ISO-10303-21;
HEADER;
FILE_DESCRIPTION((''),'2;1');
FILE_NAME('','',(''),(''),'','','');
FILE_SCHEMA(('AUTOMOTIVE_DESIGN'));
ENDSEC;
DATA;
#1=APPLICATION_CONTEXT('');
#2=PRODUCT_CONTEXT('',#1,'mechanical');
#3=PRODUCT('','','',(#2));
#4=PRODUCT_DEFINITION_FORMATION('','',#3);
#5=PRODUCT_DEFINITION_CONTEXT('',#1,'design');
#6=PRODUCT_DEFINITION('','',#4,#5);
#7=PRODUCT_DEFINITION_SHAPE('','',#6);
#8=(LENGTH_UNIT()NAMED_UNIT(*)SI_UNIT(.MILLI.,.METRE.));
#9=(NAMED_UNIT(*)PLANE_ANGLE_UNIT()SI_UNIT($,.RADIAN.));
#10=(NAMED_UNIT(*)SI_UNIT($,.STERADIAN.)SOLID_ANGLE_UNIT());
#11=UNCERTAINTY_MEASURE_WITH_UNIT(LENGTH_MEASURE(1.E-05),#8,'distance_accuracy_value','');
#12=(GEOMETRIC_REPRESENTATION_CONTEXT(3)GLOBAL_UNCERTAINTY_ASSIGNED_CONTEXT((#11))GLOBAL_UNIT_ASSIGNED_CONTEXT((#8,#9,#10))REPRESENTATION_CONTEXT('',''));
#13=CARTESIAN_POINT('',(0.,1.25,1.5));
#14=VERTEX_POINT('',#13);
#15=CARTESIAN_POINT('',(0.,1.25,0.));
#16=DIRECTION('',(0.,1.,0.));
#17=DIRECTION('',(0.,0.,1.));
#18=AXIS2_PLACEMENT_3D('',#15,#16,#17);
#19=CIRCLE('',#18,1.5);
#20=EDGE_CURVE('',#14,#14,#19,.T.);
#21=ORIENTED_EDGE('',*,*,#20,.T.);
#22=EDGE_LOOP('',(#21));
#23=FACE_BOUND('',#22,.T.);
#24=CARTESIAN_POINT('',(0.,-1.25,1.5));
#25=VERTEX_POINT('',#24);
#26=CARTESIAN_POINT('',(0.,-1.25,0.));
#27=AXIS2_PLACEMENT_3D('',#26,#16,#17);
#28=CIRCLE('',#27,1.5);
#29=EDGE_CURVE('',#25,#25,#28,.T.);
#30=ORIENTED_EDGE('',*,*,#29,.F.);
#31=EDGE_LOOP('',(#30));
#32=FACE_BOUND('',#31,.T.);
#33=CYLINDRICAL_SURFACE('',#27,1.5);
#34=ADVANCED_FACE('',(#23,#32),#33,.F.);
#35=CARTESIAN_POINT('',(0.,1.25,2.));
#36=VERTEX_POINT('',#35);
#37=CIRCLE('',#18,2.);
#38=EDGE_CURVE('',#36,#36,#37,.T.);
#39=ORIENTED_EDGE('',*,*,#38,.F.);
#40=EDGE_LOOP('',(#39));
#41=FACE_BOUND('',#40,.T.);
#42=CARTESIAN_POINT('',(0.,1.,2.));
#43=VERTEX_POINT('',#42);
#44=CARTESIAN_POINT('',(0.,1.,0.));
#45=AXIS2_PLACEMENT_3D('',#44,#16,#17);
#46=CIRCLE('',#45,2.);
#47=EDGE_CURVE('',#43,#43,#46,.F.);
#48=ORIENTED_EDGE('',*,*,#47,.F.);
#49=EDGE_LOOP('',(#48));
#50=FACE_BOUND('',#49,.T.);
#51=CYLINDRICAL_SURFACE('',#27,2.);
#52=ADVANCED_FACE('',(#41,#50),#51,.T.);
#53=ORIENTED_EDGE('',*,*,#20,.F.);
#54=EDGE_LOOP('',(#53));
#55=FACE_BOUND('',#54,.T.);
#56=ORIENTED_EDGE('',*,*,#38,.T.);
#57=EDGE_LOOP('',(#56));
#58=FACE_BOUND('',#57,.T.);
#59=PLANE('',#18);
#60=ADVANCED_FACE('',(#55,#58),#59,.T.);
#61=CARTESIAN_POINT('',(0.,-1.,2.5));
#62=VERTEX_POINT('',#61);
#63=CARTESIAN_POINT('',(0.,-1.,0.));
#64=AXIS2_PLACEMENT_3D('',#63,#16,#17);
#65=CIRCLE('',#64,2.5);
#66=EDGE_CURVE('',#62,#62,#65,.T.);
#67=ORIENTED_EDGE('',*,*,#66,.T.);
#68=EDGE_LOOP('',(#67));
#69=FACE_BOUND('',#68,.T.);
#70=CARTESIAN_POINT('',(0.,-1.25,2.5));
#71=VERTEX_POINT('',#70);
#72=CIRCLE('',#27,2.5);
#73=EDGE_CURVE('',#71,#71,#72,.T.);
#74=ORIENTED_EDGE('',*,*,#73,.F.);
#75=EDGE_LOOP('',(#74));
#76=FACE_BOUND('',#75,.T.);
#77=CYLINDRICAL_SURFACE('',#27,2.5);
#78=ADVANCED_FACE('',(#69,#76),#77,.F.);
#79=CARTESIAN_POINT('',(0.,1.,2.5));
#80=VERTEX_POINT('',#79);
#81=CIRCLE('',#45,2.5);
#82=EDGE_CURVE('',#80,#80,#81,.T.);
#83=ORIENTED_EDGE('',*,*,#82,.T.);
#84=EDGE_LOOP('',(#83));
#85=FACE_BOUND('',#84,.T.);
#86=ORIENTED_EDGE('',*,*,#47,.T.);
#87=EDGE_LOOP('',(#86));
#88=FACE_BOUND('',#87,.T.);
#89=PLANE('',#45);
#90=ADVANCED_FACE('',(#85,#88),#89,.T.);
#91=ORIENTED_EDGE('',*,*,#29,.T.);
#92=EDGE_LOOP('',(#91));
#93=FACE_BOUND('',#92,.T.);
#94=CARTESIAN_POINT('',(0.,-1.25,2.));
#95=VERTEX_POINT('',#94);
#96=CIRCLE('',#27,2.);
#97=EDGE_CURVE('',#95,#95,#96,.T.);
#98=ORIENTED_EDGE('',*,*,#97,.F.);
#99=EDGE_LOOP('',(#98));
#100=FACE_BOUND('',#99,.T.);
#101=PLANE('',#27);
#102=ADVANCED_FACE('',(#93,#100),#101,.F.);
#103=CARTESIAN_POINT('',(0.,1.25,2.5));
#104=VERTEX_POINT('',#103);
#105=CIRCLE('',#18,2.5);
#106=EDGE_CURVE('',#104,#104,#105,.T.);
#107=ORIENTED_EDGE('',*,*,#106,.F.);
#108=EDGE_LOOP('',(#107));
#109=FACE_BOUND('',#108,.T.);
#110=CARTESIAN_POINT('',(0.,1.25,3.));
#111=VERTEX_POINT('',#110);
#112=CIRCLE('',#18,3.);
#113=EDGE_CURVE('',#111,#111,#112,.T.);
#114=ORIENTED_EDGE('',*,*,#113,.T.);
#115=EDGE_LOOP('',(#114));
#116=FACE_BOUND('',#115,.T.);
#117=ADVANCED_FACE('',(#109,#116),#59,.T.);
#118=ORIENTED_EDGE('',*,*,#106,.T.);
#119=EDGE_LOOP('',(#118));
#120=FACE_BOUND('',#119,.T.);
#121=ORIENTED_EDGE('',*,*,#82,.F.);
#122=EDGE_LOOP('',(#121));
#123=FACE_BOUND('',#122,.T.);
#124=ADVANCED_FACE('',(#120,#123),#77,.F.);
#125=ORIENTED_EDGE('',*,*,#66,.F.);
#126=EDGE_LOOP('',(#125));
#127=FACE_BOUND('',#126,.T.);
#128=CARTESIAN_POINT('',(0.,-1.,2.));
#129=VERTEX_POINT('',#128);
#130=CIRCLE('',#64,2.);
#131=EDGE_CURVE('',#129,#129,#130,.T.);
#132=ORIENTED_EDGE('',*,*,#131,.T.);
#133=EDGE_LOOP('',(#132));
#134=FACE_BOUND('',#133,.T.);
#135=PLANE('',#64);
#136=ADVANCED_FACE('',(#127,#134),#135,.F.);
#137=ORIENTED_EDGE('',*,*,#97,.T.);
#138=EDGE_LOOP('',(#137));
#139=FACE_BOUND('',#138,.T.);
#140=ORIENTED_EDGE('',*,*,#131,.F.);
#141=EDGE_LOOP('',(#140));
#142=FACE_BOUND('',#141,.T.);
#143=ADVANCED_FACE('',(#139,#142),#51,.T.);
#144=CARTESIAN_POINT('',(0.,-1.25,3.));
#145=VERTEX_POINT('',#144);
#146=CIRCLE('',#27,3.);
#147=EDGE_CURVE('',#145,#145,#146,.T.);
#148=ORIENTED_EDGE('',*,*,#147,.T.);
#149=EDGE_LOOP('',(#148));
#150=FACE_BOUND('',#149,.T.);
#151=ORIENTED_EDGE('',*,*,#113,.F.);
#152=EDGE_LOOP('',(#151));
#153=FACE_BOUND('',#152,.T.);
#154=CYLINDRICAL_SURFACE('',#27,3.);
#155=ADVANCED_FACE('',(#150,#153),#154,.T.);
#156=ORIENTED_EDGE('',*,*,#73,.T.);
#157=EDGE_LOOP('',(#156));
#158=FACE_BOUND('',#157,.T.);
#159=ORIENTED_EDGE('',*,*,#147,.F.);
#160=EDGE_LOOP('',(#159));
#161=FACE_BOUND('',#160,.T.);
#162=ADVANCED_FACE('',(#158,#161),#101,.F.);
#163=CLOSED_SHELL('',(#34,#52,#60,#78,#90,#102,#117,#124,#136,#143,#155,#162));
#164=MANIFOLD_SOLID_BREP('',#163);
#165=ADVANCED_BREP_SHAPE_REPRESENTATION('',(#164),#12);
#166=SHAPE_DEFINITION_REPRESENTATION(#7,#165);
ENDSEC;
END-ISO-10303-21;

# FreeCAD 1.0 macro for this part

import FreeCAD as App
import Part
import Sketcher

V = App.Vector

doc = App.newDocument("Part")
params = doc.addObject("Spreadsheet::Sheet", "Params")
for row, (alias, value) in enumerate([
    ("sketch1_diameter", "4 mm"),
    ("sketch1_diameter2", "3 mm"),
    ("pad1_length", "1.25 mm"),
    ("pad1_length2", "1.25 mm"),
    ("sketch2_diameter", "5 mm"),
    ("sketch2_diameter2", "4 mm"),
    ("pad2_length", "1 mm"),
    ("pad2_length2", "1 mm"),
    ("sketch3_diameter", "6 mm"),
    ("sketch3_diameter2", "5 mm"),
    ("pad3_length", "1.25 mm"),
    ("pad3_length2", "1.25 mm"),
], start=1):
    params.set(f"A{row}", alias)
    params.set(f"B{row}", "=" + value)
    params.setAlias(f"B{row}", alias)

body = doc.addObject("PartDesign::Body", "Body")

sketch1 = body.newObject("Sketcher::SketchObject", "Sketch")
sketch1.AttachmentSupport = (doc.getObject("XZ_Plane"), [""])
sketch1.MapMode = "FlatFace"
sketch1.addGeometry([
    Part.Circle(V(0, 0, 0), V(0, 0, 1), 2),
    Part.Circle(V(0, 0, 0), V(0, 0, 1), 1.5),
], False)
sketch1.addConstraint([
    Sketcher.Constraint("Coincident", 0, 3, -1, 1),
    Sketcher.Constraint("Coincident", 1, 3, -1, 1),
    Sketcher.Constraint("Diameter", 0, 4.0),
    Sketcher.Constraint("Diameter", 1, 3.0),
])
sketch1.setExpression("Constraints[2]", "Params.sketch1_diameter")
sketch1.setExpression("Constraints[3]", "Params.sketch1_diameter2")
pad1 = body.newObject("PartDesign::Pad", "Pad")
pad1.Profile = sketch1
pad1.Type = "TwoLengths"
pad1.setExpression("Length", "Params.pad1_length")
pad1.setExpression("Length2", "Params.pad1_length2")
pad1.Reversed = True

sketch2 = body.newObject("Sketcher::SketchObject", "Sketch001")
sketch2.AttachmentSupport = (doc.getObject("XZ_Plane"), [""])
sketch2.MapMode = "FlatFace"
sketch2.addGeometry([
    Part.Circle(V(0, 0, 0), V(0, 0, 1), 2.5),
    Part.Circle(V(0, 0, 0), V(0, 0, 1), 2),
], False)
sketch2.addConstraint([
    Sketcher.Constraint("Coincident", 0, 3, -1, 1),
    Sketcher.Constraint("Coincident", 1, 3, -1, 1),
    Sketcher.Constraint("Diameter", 0, 5.0),
    Sketcher.Constraint("Diameter", 1, 4.0),
])
sketch2.setExpression("Constraints[2]", "Params.sketch2_diameter")
sketch2.setExpression("Constraints[3]", "Params.sketch2_diameter2")
pad2 = body.newObject("PartDesign::Pad", "Pad001")
pad2.Profile = sketch2
pad2.Type = "TwoLengths"
pad2.setExpression("Length", "Params.pad2_length")
pad2.setExpression("Length2", "Params.pad2_length2")
pad2.Reversed = True

sketch3 = body.newObject("Sketcher::SketchObject", "Sketch002")
sketch3.AttachmentSupport = (doc.getObject("XZ_Plane"), [""])
sketch3.MapMode = "FlatFace"
sketch3.addGeometry([
    Part.Circle(V(0, 0, 0), V(0, 0, 1), 3),
    Part.Circle(V(0, 0, 0), V(0, 0, 1), 2.5),
], False)
sketch3.addConstraint([
    Sketcher.Constraint("Coincident", 0, 3, -1, 1),
    Sketcher.Constraint("Coincident", 1, 3, -1, 1),
    Sketcher.Constraint("Diameter", 0, 6.0),
    Sketcher.Constraint("Diameter", 1, 5.0),
])
sketch3.setExpression("Constraints[2]", "Params.sketch3_diameter")
sketch3.setExpression("Constraints[3]", "Params.sketch3_diameter2")
pad3 = body.newObject("PartDesign::Pad", "Pad002")
pad3.Profile = sketch3
pad3.Type = "TwoLengths"
pad3.setExpression("Length", "Params.pad3_length")
pad3.setExpression("Length2", "Params.pad3_length2")
pad3.Reversed = True

doc.recompute()
